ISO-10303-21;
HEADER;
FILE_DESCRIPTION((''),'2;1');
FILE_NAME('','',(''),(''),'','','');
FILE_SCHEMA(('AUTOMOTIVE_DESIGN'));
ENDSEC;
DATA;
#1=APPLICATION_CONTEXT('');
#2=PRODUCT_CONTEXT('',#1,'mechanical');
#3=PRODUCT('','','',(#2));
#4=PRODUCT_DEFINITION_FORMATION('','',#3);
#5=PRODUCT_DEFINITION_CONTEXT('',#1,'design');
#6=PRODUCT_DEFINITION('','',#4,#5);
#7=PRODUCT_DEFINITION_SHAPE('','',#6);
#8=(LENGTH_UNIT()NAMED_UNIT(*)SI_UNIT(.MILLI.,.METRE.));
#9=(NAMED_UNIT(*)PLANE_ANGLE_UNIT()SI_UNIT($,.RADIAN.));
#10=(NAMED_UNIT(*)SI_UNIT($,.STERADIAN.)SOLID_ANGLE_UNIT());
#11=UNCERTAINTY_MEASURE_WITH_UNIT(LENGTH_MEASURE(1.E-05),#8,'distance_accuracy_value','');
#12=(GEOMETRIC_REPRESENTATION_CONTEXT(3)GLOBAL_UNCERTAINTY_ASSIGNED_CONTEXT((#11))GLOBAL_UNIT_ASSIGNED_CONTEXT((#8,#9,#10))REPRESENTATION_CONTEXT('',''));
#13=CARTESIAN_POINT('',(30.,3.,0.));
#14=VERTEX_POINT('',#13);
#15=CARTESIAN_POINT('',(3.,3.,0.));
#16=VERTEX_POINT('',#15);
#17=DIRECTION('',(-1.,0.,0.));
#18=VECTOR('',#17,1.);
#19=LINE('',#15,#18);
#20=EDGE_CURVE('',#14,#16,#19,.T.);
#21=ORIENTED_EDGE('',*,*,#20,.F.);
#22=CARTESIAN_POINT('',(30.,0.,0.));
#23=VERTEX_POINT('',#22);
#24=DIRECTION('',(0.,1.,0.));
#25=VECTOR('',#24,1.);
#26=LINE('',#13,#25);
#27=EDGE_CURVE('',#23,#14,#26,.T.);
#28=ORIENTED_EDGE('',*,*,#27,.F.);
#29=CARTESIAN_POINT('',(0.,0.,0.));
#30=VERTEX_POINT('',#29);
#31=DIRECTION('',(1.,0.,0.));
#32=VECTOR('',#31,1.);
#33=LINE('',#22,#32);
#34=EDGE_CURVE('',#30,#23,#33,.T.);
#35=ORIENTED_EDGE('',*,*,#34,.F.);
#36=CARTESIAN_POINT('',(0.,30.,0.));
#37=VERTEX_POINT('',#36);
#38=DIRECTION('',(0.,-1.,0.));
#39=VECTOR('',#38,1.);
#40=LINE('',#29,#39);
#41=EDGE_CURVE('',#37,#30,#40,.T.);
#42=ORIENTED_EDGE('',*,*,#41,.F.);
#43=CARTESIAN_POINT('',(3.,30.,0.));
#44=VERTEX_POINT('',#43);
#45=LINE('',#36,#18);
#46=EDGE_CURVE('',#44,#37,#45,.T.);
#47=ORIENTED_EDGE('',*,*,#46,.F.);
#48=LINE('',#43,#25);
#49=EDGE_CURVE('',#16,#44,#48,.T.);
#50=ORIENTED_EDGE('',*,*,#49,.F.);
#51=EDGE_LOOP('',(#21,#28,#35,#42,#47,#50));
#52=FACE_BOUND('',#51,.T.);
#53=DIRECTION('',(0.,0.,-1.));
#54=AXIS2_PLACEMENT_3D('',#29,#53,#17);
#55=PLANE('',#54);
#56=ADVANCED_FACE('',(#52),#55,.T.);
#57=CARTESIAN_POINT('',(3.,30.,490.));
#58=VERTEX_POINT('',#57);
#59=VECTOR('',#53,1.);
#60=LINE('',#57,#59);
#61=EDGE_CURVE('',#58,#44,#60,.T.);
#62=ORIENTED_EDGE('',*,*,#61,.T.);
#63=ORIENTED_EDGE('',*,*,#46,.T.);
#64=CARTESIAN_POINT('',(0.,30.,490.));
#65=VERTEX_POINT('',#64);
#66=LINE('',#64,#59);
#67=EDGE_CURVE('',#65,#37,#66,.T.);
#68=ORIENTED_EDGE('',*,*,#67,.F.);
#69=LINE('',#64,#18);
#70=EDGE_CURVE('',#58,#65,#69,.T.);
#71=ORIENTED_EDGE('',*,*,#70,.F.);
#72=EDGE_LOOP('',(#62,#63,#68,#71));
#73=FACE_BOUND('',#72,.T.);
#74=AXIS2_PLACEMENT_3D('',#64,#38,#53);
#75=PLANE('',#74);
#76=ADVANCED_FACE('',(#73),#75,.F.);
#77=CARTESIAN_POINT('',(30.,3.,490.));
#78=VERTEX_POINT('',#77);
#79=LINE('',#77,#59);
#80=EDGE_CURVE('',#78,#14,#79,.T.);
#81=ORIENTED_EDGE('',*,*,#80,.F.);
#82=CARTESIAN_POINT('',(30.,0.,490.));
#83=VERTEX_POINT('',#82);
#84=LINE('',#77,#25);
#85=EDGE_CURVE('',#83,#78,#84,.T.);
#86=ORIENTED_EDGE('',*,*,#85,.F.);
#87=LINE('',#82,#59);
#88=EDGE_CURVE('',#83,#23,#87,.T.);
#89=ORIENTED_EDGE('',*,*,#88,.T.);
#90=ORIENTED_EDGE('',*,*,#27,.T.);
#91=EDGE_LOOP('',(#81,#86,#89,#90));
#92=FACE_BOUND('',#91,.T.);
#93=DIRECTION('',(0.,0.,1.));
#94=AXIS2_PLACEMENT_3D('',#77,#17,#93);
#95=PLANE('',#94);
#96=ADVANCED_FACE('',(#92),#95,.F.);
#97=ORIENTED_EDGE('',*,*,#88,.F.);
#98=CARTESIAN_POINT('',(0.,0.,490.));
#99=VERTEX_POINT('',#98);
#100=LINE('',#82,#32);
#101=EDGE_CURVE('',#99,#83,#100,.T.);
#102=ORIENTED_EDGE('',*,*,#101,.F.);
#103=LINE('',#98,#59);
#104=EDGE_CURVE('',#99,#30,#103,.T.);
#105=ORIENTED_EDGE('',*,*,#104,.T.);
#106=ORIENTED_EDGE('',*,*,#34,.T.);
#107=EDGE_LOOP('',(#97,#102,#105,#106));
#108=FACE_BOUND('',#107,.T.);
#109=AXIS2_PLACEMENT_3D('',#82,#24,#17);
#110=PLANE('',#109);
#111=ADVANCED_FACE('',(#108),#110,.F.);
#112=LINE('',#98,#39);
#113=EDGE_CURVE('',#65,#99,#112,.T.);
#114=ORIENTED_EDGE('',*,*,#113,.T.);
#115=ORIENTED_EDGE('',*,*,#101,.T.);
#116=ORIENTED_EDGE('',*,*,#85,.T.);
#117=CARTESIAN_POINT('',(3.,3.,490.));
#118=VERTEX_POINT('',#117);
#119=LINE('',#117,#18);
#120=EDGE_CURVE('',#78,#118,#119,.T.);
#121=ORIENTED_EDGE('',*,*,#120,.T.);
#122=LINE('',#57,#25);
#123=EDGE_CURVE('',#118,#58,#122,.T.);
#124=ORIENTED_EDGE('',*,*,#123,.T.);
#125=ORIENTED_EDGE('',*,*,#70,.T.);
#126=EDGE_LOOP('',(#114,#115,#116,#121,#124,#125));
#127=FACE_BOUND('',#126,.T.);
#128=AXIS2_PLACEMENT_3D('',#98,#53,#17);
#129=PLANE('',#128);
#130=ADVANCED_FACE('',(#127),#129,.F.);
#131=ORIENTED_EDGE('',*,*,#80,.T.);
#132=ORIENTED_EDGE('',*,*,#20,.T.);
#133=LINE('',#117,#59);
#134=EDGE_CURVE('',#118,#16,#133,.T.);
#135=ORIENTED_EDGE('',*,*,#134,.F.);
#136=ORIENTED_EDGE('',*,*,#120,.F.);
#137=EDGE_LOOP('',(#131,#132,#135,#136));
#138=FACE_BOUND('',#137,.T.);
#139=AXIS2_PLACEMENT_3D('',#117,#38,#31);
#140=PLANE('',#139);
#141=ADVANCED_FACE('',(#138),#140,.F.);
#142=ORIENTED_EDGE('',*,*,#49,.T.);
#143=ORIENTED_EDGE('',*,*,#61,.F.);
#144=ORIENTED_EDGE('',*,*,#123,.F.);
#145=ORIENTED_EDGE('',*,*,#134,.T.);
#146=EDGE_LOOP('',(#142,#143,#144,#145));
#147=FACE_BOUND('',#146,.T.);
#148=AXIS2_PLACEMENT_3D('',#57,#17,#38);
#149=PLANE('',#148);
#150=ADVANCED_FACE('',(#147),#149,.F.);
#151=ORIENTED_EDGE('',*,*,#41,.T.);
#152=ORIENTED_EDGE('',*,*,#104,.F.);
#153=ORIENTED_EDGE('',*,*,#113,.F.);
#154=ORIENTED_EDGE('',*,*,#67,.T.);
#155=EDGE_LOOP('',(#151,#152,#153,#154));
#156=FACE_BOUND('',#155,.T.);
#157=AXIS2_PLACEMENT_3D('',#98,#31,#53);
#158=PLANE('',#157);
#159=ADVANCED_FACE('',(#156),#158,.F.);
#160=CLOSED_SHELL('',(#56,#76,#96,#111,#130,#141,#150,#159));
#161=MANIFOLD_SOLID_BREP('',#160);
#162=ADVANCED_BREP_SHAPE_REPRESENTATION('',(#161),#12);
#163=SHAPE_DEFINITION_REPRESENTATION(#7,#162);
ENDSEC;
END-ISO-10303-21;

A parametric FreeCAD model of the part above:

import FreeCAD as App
import Part
import Sketcher

doc = App.newDocument("Part")
body = doc.addObject("PartDesign::Body", "Body")

sketch1 = doc.addObject("Sketcher::SketchObject", "Sketch")
body.addObject(sketch1)
sketch1.AttachmentSupport = (doc.XY_Plane, [""])
sketch1.MapMode = "FlatFace"
sketch1.addGeometry(Part.LineSegment(App.Vector(0, 30, 0), App.Vector(0, 0, 0)), False)
sketch1.addGeometry(Part.LineSegment(App.Vector(0, 0, 0), App.Vector(30, 0, 0)), False)
sketch1.addGeometry(Part.LineSegment(App.Vector(30, 0, 0), App.Vector(30, 3, 0)), False)
sketch1.addGeometry(Part.LineSegment(App.Vector(30, 3, 0), App.Vector(3, 3, 0)), False)
sketch1.addGeometry(Part.LineSegment(App.Vector(3, 3, 0), App.Vector(3, 30, 0)), False)
sketch1.addGeometry(Part.LineSegment(App.Vector(3, 30, 0), App.Vector(0, 30, 0)), False)
sketch1.addConstraint(Sketcher.Constraint("Coincident", 0, 2, 1, 1))
sketch1.addConstraint(Sketcher.Constraint("Coincident", 1, 2, 2, 1))
sketch1.addConstraint(Sketcher.Constraint("Coincident", 2, 2, 3, 1))
sketch1.addConstraint(Sketcher.Constraint("Coincident", 3, 2, 4, 1))
sketch1.addConstraint(Sketcher.Constraint("Coincident", 4, 2, 5, 1))
sketch1.addConstraint(Sketcher.Constraint("Coincident", 5, 2, 0, 1))
sketch1.addConstraint(Sketcher.Constraint("Vertical", 0))
sketch1.addConstraint(Sketcher.Constraint("Horizontal", 1))
sketch1.addConstraint(Sketcher.Constraint("Vertical", 2))
sketch1.addConstraint(Sketcher.Constraint("Horizontal", 3))
sketch1.addConstraint(Sketcher.Constraint("Vertical", 4))
sketch1.addConstraint(Sketcher.Constraint("Horizontal", 5))
sketch1.addConstraint(Sketcher.Constraint("Coincident", 0, 2, -1, 1))
sketch1.addConstraint(Sketcher.Constraint("Equal", 1, 0))
sketch1.addConstraint(Sketcher.Constraint("Equal", 5, 2))
sketch1.addConstraint(Sketcher.Constraint("DistanceX", 1, 1, 1, 2, 30.0))
sketch1.addConstraint(Sketcher.Constraint("DistanceX", 3, 2, 3, 1, 27.0))
pad1 = doc.addObject("PartDesign::Pad", "Pad")
body.addObject(pad1)
pad1.Profile = sketch1
pad1.Length = 490

doc.recompute()
